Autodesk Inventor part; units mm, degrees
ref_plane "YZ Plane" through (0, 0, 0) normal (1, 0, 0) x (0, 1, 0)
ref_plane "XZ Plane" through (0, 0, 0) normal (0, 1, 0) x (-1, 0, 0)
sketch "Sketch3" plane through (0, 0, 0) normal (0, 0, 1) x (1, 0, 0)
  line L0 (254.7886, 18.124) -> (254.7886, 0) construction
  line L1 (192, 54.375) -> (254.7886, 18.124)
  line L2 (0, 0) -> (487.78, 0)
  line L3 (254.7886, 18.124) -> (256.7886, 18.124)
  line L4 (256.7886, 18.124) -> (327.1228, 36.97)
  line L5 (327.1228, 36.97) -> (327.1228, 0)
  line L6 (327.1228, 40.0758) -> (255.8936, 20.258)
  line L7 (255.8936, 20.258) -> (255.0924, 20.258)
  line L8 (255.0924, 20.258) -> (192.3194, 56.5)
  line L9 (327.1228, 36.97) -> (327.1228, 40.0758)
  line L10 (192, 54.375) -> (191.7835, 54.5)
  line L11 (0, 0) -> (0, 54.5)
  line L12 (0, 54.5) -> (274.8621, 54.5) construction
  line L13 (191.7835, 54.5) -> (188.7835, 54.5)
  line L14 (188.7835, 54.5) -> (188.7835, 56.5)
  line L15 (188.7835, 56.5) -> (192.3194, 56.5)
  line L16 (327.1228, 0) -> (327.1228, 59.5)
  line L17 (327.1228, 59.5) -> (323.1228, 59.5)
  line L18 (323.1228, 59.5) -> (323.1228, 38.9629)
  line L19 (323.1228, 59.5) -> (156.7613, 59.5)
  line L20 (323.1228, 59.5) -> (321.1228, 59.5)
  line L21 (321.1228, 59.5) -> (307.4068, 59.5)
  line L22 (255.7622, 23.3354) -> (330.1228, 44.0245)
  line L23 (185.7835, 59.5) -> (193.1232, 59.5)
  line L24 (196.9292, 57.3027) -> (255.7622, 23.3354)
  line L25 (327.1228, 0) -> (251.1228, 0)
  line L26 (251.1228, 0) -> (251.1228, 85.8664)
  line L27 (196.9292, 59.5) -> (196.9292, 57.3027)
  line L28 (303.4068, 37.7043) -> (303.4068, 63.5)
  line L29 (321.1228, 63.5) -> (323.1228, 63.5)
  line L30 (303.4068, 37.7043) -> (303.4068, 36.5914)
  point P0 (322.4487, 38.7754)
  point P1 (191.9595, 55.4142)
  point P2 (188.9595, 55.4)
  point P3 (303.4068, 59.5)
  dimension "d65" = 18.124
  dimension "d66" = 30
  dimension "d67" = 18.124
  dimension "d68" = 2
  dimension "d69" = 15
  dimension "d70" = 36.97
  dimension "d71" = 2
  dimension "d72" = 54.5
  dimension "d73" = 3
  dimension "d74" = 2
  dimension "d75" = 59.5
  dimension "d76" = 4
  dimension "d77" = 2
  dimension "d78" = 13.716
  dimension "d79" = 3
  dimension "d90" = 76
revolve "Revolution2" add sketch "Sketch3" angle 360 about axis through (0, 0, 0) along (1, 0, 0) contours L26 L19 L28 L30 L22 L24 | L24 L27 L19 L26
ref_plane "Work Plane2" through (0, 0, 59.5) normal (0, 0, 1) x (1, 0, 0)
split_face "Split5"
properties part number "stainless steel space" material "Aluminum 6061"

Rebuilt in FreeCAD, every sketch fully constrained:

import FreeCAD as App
import Part
import Sketcher
Q = App.Units.Quantity


def add_polygon(sketch, points):
    """Adds a closed chain of lines whose ends are joined by coincident constraints."""
    first, n = sketch.GeometryCount, len(points)
    for a, b in zip(points, points[1:] + points[:1]):
        sketch.addGeometry(Part.LineSegment(App.Vector(*a, 0), App.Vector(*b, 0)), False)
    for i in range(n):
        sketch.addConstraint(Sketcher.Constraint("Coincident", first + i, 2, first + (i + 1) % n, 1))

doc = App.newDocument("Part")
body = doc.addObject("PartDesign::Body", "Body")

# Sketch on XY plane
sketch1 = doc.addObject("Sketcher::SketchObject", "Sketch")
body.addObject(sketch1)
sketch1.AttachmentSupport = (doc.XY_Plane, [""])
sketch1.MapMode = "FlatFace"
add_polygon(sketch1, [(303.4068, 59.5), (196.9292, 59.5), (196.9292, 57.3027), (255.7622, 23.3354), (303.4068, 36.5914)])  # lines 0-4
sketch1.addConstraint([
    Sketcher.Constraint("Horizontal", 0),
    Sketcher.Constraint("Vertical", 1),
    Sketcher.Constraint("Vertical", 4),
    Sketcher.Constraint("Angle", 2, Q("-30 deg")),
    Sketcher.Constraint("DistanceY", -1, 1, 0, 2, 59.5),
    Sketcher.Constraint("DistanceX", 0, 2, 0, 1, 106.4776),
    Sketcher.Constraint("DistanceY", 1, 2, 1, 1, 2.1973),
    Sketcher.Constraint("DistanceY", 4, 1, 4, 2, 22.9086),
    Sketcher.Constraint("DistanceX", 1, 2, 2, 2, 58.833),
    Sketcher.Constraint("DistanceX", -1, 1, 0, 2, 196.9292),
])
revolution = doc.addObject("PartDesign::Revolution", "Revolution")
body.addObject(revolution)
revolution.Profile = sketch1
revolution.ReferenceAxis = (sketch1, ["H_Axis"])
revolution.Angle = 360

doc.recompute()
